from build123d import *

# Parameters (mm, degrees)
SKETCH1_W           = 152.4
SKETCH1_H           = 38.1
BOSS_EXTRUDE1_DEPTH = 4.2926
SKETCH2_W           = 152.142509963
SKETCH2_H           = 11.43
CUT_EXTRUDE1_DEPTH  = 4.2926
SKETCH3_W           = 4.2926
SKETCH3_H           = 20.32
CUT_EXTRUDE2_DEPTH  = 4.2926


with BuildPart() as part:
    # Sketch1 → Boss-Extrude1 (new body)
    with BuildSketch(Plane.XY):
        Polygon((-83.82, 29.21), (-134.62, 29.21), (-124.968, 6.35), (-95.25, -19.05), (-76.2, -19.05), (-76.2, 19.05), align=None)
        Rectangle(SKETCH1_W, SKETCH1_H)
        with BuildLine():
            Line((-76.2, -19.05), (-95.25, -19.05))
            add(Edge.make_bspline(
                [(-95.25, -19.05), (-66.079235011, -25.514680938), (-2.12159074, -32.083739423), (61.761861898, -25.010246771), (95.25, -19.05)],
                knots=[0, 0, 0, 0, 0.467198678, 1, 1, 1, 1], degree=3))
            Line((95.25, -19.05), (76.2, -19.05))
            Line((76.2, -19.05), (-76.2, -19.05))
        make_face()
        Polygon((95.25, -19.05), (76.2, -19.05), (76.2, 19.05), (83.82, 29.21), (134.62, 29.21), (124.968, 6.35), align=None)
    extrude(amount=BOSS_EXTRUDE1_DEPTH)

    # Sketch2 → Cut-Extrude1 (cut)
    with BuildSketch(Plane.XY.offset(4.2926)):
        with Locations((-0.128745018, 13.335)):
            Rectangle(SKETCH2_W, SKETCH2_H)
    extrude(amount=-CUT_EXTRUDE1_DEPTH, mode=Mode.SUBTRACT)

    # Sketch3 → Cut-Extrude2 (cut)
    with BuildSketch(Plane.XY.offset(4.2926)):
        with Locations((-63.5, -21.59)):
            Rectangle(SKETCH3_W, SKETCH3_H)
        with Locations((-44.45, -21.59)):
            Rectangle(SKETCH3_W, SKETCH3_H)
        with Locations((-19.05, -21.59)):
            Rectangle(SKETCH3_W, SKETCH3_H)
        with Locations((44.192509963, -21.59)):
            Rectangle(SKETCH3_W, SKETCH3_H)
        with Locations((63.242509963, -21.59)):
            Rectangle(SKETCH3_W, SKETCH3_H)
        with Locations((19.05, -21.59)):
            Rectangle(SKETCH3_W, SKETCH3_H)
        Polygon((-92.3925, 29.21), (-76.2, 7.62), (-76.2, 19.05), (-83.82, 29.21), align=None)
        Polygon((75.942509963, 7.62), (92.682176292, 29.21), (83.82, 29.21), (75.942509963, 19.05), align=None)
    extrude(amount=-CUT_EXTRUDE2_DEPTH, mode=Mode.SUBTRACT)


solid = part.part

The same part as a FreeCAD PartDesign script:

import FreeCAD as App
import Part
import Sketcher

V = App.Vector
Q = App.Units.Quantity

doc = App.newDocument("Part")
body = doc.addObject("PartDesign::Body", "Body")

# Sketch on XY plane
sketch1 = doc.addObject("Sketcher::SketchObject", "Sketch")
body.addObject(sketch1)
sketch1.AttachmentSupport = (doc.XY_Plane, [""])
sketch1.MapMode = "FlatFace"
sketch1.addGeometry([
    Part.LineSegment(V(-83.82, 29.21, 0), V(-134.62, 29.21, 0)),  # 0
    Part.LineSegment(V(-134.62, 29.21, 0), V(-124.968, 6.35, 0)),  # 1
    Part.LineSegment(V(-124.968, 6.35, 0), V(-95.25, -19.05, 0)),  # 2
    Part.BSplineCurve([V(-95.25, -19.05, 0), V(-66.079235, -25.514681, 0), V(-2.121591, -32.083739, 0), V(61.761862, -25.010247, 0), V(95.25, -19.05, 0)], [4, 1, 4], [0, 0.467198678, 1], False, 3, [1, 1, 1, 1, 1], False),  # 3
    Part.LineSegment(V(95.25, -19.05, 0), V(124.968, 6.35, 0)),  # 4
    Part.LineSegment(V(124.968, 6.35, 0), V(134.62, 29.21, 0)),  # 5
    Part.LineSegment(V(134.62, 29.21, 0), V(83.82, 29.21, 0)),  # 6
    Part.LineSegment(V(83.82, 29.21, 0), V(76.2, 19.05, 0)),  # 7
    Part.LineSegment(V(76.2, 19.05, 0), V(-76.2, 19.05, 0)),  # 8
    Part.LineSegment(V(-76.2, 19.05, 0), V(-83.82, 29.21, 0)),  # 9
], False)
sketch1.addConstraint([
    Sketcher.Constraint("Block", 3),
    Sketcher.Constraint("Coincident", 0, 2, 1, 1),
    Sketcher.Constraint("Coincident", 1, 2, 2, 1),
    Sketcher.Constraint("Coincident", 2, 2, 3, 1),
    Sketcher.Constraint("Coincident", 3, 2, 4, 1),
    Sketcher.Constraint("Coincident", 4, 2, 5, 1),
    Sketcher.Constraint("Coincident", 5, 2, 6, 1),
    Sketcher.Constraint("Coincident", 6, 2, 7, 1),
    Sketcher.Constraint("Coincident", 7, 2, 8, 1),
    Sketcher.Constraint("Coincident", 8, 2, 9, 1),
    Sketcher.Constraint("Coincident", 9, 2, 0, 1),
    Sketcher.Constraint("Horizontal", 0),
    Sketcher.Constraint("Horizontal", 6),
    Sketcher.Constraint("Horizontal", 8),
    Sketcher.Constraint("Symmetric", 1, 2, 4, 2, -2),
    Sketcher.Constraint("Symmetric", 0, 2, 5, 2, -2),
    Sketcher.Constraint("Equal", 0, 6),
    Sketcher.Constraint("Equal", 7, 9),
    Sketcher.Constraint("DistanceX", 0, 2, 0, 1, Q("2 in")),
    Sketcher.Constraint("DistanceX", 8, 2, 8, 1, Q("6 in")),
    Sketcher.Constraint("DistanceY", 2, 2, 1, 2, Q("1 in")),
    Sketcher.Constraint("Distance", 7, Q("0.5 in")),
    Sketcher.Constraint("DistanceX", 0, 2, -1, 1, Q("5.3 in")),
    Sketcher.Constraint("DistanceY", 1, 2, 0, 2, Q("0.9 in")),
    Sketcher.Constraint("DistanceX", 1, 2, -1, 1, Q("4.92 in")),
])
pad1 = doc.addObject("PartDesign::Pad", "Pad")
body.addObject(pad1)
pad1.Profile = sketch1
pad1.Length = Q("0.169 in")

# Sketch on XY plane
sketch2 = doc.addObject("Sketcher::SketchObject", "Sketch001")
body.addObject(sketch2)
sketch2.AttachmentSupport = (doc.XY_Plane, [""])
sketch2.MapMode = "FlatFace"
sketch2.AttachmentOffset = App.Placement(V(0, 0, 0.169 * 25.4), App.Rotation())
sketch2.addGeometry([
    Part.LineSegment(V(-76.2, 19.05, 0), V(-76.2, 7.62, 0)),
    Part.LineSegment(V(-76.2, 7.62, 0), V(75.94251, 7.62, 0)),
    Part.LineSegment(V(75.94251, 7.62, 0), V(75.94251, 19.05, 0)),
    Part.LineSegment(V(75.94251, 19.05, 0), V(-76.2, 19.05, 0)),
], False)
sketch2.addConstraint([
    Sketcher.Constraint("Coincident", 0, 2, 1, 1),
    Sketcher.Constraint("Coincident", 1, 2, 2, 1),
    Sketcher.Constraint("Coincident", 2, 2, 3, 1),
    Sketcher.Constraint("Coincident", 3, 2, 0, 1),
    Sketcher.Constraint("Vertical", 0),
    Sketcher.Constraint("Horizontal", 1),
    Sketcher.Constraint("Vertical", 2),
    Sketcher.Constraint("Horizontal", 3),
    Sketcher.Constraint("DistanceX", 0, 2, -1, 1, Q("3 in")),
    Sketcher.Constraint("DistanceY", 0, 2, 0, 1, Q("0.45 in")),
    Sketcher.Constraint("DistanceY", -1, 1, 0, 2, Q("0.3 in")),
    Sketcher.Constraint("DistanceX", 1, 1, 1, 2, Q("152.14251 mm")),
])
pocket1 = doc.addObject("PartDesign::Pocket", "Pocket")
body.addObject(pocket1)
pocket1.Profile = sketch2
pocket1.Length = Q("0.169 in")

# Sketch on XY plane
sketch3 = doc.addObject("Sketcher::SketchObject", "Sketch002")
body.addObject(sketch3)
sketch3.AttachmentSupport = (doc.XY_Plane, [""])
sketch3.MapMode = "FlatFace"
sketch3.AttachmentOffset = App.Placement(V(0, 0, 0.169 * 25.4), App.Rotation())
sketch3.addGeometry([
    Part.LineSegment(V(-65.6463, -11.43, 0), V(-65.6463, -31.75, 0)),  # 0
    Part.LineSegment(V(-65.6463, -31.75, 0), V(-61.3537, -31.75, 0)),  # 1
    Part.LineSegment(V(-61.3537, -31.75, 0), V(-61.3537, -11.43, 0)),  # 2
    Part.LineSegment(V(-61.3537, -11.43, 0), V(-65.6463, -11.43, 0)),  # 3
    Part.LineSegment(V(-46.5963, -11.43, 0), V(-46.5963, -31.75, 0)),  # 4
    Part.LineSegment(V(-46.5963, -31.75, 0), V(-42.3037, -31.75, 0)),  # 5
    Part.LineSegment(V(-42.3037, -31.75, 0), V(-42.3037, -11.43, 0)),  # 6
    Part.LineSegment(V(-42.3037, -11.43, 0), V(-46.5963, -11.43, 0)),  # 7
    Part.LineSegment(V(-21.1963, -11.43, 0), V(-21.1963, -31.75, 0)),  # 8
    Part.LineSegment(V(-21.1963, -31.75, 0), V(-16.9037, -31.75, 0)),  # 9
    Part.LineSegment(V(-16.9037, -31.75, 0), V(-16.9037, -11.43, 0)),  # 10
    Part.LineSegment(V(-16.9037, -11.43, 0), V(-21.1963, -11.43, 0)),  # 11
    Part.LineSegment(V(42.04621, -11.43, 0), V(42.04621, -31.75, 0)),  # 12
    Part.LineSegment(V(42.04621, -31.75, 0), V(46.33881, -31.75, 0)),  # 13
    Part.LineSegment(V(46.33881, -31.75, 0), V(46.33881, -11.43, 0)),  # 14
    Part.LineSegment(V(46.33881, -11.43, 0), V(42.04621, -11.43, 0)),  # 15
    Part.LineSegment(V(61.09621, -11.43, 0), V(61.09621, -31.75, 0)),  # 16
    Part.LineSegment(V(61.09621, -31.75, 0), V(65.38881, -31.75, 0)),  # 17
    Part.LineSegment(V(65.38881, -31.75, 0), V(65.38881, -11.43, 0)),  # 18
    Part.LineSegment(V(65.38881, -11.43, 0), V(61.09621, -11.43, 0)),  # 19
    Part.LineSegment(V(16.9037, -11.43, 0), V(16.9037, -31.75, 0)),  # 20
    Part.LineSegment(V(16.9037, -31.75, 0), V(21.1963, -31.75, 0)),  # 21
    Part.LineSegment(V(21.1963, -31.75, 0), V(21.1963, -11.43, 0)),  # 22
    Part.LineSegment(V(21.1963, -11.43, 0), V(16.9037, -11.43, 0)),  # 23
    Part.LineSegment(V(-92.3925, 29.21, 0), V(-76.2, 7.62, 0)),  # 24
    Part.LineSegment(V(-76.2, 7.62, 0), V(-76.2, 19.05, 0)),  # 25
    Part.LineSegment(V(-76.2, 19.05, 0), V(-83.82, 29.21, 0)),  # 26
    Part.LineSegment(V(-83.82, 29.21, 0), V(-92.3925, 29.21, 0)),  # 27
    Part.LineSegment(V(75.94251, 7.62, 0), V(92.682176, 29.21, 0)),  # 28
    Part.LineSegment(V(92.682176, 29.21, 0), V(83.82, 29.21, 0)),  # 29
    Part.LineSegment(V(83.82, 29.21, 0), V(75.94251, 19.05, 0)),  # 30
    Part.LineSegment(V(75.94251, 19.05, 0), V(75.94251, 7.62, 0)),  # 31
], False)
sketch3.addConstraint([
    Sketcher.Constraint("Coincident", 0, 2, 1, 1),
    Sketcher.Constraint("Coincident", 1, 2, 2, 1),
    Sketcher.Constraint("Coincident", 2, 2, 3, 1),
    Sketcher.Constraint("Coincident", 3, 2, 0, 1),
    Sketcher.Constraint("Coincident", 4, 2, 5, 1),
    Sketcher.Constraint("Coincident", 5, 2, 6, 1),
    Sketcher.Constraint("Coincident", 6, 2, 7, 1),
    Sketcher.Constraint("Coincident", 7, 2, 4, 1),
    Sketcher.Constraint("Coincident", 8, 2, 9, 1),
    Sketcher.Constraint("Coincident", 9, 2, 10, 1),
    Sketcher.Constraint("Coincident", 10, 2, 11, 1),
    Sketcher.Constraint("Coincident", 11, 2, 8, 1),
    Sketcher.Constraint("Coincident", 12, 2, 13, 1),
    Sketcher.Constraint("Coincident", 13, 2, 14, 1),
    Sketcher.Constraint("Coincident", 14, 2, 15, 1),
    Sketcher.Constraint("Coincident", 15, 2, 12, 1),
    Sketcher.Constraint("Coincident", 16, 2, 17, 1),
    Sketcher.Constraint("Coincident", 17, 2, 18, 1),
    Sketcher.Constraint("Coincident", 18, 2, 19, 1),
    Sketcher.Constraint("Coincident", 19, 2, 16, 1),
    Sketcher.Constraint("Coincident", 20, 2, 21, 1),
    Sketcher.Constraint("Coincident", 21, 2, 22, 1),
    Sketcher.Constraint("Coincident", 22, 2, 23, 1),
    Sketcher.Constraint("Coincident", 23, 2, 20, 1),
    Sketcher.Constraint("Coincident", 24, 2, 25, 1),
    Sketcher.Constraint("Coincident", 25, 2, 26, 1),
    Sketcher.Constraint("Coincident", 26, 2, 27, 1),
    Sketcher.Constraint("Coincident", 27, 2, 24, 1),
    Sketcher.Constraint("Coincident", 28, 2, 29, 1),
    Sketcher.Constraint("Coincident", 29, 2, 30, 1),
    Sketcher.Constraint("Coincident", 30, 2, 31, 1),
    Sketcher.Constraint("Coincident", 31, 2, 28, 1),
    Sketcher.Constraint("Vertical", 0),
    Sketcher.Constraint("Horizontal", 1),
    Sketcher.Constraint("Vertical", 2),
    Sketcher.Constraint("Horizontal", 3),
    Sketcher.Constraint("Vertical", 4),
    Sketcher.Constraint("Horizontal", 5),
    Sketcher.Constraint("Vertical", 6),
    Sketcher.Constraint("Horizontal", 7),
    Sketcher.Constraint("Vertical", 8),
    Sketcher.Constraint("Horizontal", 9),
    Sketcher.Constraint("Vertical", 10),
    Sketcher.Constraint("Horizontal", 11),
    Sketcher.Constraint("Vertical", 12),
    Sketcher.Constraint("Horizontal", 13),
    Sketcher.Constraint("Vertical", 14),
    Sketcher.Constraint("Horizontal", 15),
    Sketcher.Constraint("Vertical", 16),
    Sketcher.Constraint("Horizontal", 17),
    Sketcher.Constraint("Vertical", 18),
    Sketcher.Constraint("Horizontal", 19),
    Sketcher.Constraint("Vertical", 20),
    Sketcher.Constraint("Horizontal", 21),
    Sketcher.Constraint("Vertical", 22),
    Sketcher.Constraint("Horizontal", 23),
    Sketcher.Constraint("Vertical", 25),
    Sketcher.Constraint("Horizontal", 27),
    Sketcher.Constraint("Horizontal", 29),
    Sketcher.Constraint("Vertical", 31),
    Sketcher.Constraint("Symmetric", 9, 2, 20, 2, -2),
    Sketcher.Constraint("Symmetric", 11, 2, 22, 2, -2),
    Sketcher.Constraint("Symmetric", 26, 2, 29, 2, -2),
    Sketcher.Constraint("Parallel", 24, 26),
    Sketcher.Constraint("Parallel", 28, 30),
    Sketcher.Constraint("Horizontal", 1, 2, 4, 2),
    Sketcher.Constraint("Horizontal", 3, 2, 6, 2),
    Sketcher.Constraint("Horizontal", 5, 2, 8, 2),
    Sketcher.Constraint("Horizontal", 7, 2, 10, 2),
    Sketcher.Constraint("Horizontal", 9, 2, 12, 2),
    Sketcher.Constraint("Horizontal", 11, 2, 14, 2),
    Sketcher.Constraint("Horizontal", 13, 2, 16, 2),
    Sketcher.Constraint("Horizontal", 15, 2, 18, 2),
    Sketcher.Constraint("Horizontal", 25, 2, 30, 2),
    Sketcher.Constraint("Horizontal", 24, 2, 31, 2),
    Sketcher.Constraint("Equal", 3, 5),
    Sketcher.Constraint("Equal", 7, 9),
    Sketcher.Constraint("Equal", 11, 13),
    Sketcher.Constraint("Equal", 15, 17),
    Sketcher.Constraint("DistanceY", 0, 2, 0, 1, Q("0.8 in")),
    Sketcher.Constraint("DistanceX", 24, 2, -1, 1, Q("3 in")),
    Sketcher.Constraint("DistanceX", 4, 2, 8, 2, Q("1 in")),
    Sketcher.Constraint("Distance", 26, Q("0.5 in")),
    Sketcher.Constraint("DistanceY", 25, 1, 25, 2, Q("0.45 in")),
    Sketcher.Constraint("DistanceY", -1, 1, 24, 2, Q("0.3 in")),
    Sketcher.Constraint("DistanceX", 26, 2, -1, 1, Q("3.3 in")),
    Sketcher.Constraint("DistanceY", 3, 2, 25, 2, Q("1.2 in")),
    Sketcher.Constraint("DistanceX", 1, 1, 1, 2, Q("0.169 in")),
    Sketcher.Constraint("DistanceX", 0, 2, 4, 2, Q("0.75 in")),
    Sketcher.Constraint("DistanceX", 12, 2, 16, 2, Q("0.75 in")),
    Sketcher.Constraint("DistanceX", 9, 2, 20, 2, Q("1.331 in")),
    Sketcher.Constraint("DistanceX", 18, 2, 30, 2, Q("0.4155 in")),
    Sketcher.Constraint("DistanceX", 29, 2, 29, 1, Q("8.862176 mm")),
])
pocket2 = doc.addObject("PartDesign::Pocket", "Pocket001")
body.addObject(pocket2)
pocket2.Profile = sketch3
pocket2.Length = Q("0.169 in")

doc.recompute()
